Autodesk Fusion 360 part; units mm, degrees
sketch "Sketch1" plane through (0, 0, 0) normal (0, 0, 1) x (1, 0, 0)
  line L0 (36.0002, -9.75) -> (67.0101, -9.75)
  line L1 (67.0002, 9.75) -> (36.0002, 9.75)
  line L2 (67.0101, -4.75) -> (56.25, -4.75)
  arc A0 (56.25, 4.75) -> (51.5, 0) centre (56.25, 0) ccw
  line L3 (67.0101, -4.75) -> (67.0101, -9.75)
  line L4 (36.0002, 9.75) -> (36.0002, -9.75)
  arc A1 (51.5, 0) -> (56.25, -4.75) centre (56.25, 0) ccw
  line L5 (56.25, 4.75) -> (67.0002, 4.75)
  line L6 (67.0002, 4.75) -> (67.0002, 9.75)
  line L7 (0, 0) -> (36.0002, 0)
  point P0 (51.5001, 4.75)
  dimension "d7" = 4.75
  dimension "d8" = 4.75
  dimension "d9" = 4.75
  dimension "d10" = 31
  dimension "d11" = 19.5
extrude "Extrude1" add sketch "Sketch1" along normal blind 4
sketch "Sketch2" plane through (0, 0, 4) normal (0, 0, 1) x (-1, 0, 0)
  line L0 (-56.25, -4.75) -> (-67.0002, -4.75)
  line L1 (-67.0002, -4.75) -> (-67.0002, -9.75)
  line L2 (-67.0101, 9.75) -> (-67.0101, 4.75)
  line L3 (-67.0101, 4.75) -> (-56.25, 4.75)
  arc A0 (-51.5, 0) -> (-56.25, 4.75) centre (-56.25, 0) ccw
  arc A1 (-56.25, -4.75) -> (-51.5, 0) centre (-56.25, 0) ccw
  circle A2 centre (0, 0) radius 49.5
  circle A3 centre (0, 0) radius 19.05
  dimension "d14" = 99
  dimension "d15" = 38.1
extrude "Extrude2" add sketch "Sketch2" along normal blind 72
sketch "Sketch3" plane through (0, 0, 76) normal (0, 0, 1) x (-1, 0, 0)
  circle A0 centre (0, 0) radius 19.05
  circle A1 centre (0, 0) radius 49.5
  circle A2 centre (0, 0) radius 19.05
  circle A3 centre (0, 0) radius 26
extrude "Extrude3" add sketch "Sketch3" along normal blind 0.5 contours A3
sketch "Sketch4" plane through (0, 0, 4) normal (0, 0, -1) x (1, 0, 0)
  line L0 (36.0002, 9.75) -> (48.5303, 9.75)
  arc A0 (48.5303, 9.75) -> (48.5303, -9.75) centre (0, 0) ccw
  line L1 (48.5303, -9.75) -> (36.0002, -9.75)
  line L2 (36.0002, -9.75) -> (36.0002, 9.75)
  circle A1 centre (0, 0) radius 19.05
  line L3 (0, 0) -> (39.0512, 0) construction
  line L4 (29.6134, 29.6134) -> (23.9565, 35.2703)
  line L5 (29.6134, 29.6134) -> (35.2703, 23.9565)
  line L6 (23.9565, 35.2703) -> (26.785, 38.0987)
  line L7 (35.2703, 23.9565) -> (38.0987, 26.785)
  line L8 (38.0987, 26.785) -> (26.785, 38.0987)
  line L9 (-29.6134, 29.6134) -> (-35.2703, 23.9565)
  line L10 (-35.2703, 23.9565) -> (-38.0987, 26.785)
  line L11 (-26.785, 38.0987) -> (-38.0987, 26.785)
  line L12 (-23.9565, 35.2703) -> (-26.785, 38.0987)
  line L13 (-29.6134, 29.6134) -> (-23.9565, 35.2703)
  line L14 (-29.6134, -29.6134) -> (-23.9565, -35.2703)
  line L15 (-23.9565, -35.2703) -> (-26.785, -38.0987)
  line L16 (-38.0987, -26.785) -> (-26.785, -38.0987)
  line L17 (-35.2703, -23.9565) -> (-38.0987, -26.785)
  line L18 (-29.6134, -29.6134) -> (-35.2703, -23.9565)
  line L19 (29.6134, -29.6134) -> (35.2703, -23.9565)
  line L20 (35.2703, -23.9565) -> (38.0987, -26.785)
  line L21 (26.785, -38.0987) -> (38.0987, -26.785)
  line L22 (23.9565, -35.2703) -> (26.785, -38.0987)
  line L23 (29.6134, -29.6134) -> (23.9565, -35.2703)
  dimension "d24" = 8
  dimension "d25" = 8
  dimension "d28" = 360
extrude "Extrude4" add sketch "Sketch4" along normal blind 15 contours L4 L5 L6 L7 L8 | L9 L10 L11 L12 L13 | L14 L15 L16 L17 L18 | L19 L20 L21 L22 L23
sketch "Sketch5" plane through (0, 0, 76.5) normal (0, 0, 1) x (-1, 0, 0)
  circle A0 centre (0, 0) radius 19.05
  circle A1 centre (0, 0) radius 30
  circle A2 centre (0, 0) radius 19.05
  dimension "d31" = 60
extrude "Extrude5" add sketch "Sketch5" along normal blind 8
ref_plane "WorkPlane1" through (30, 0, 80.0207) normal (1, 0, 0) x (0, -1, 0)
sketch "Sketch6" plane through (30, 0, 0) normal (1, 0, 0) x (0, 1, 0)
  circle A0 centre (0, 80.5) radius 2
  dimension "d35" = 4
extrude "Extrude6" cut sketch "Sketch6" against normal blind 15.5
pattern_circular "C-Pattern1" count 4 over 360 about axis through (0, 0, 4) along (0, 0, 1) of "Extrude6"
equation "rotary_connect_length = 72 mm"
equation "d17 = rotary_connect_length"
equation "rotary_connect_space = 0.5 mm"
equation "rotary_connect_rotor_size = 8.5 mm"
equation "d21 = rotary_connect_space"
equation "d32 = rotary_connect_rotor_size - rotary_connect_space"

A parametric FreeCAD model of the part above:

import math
import FreeCAD as App
import Part
import Sketcher

V = App.Vector
Q = App.Units.Quantity

doc = App.newDocument("Part")
body = doc.addObject("PartDesign::Body", "Body")

# Sketch on XY plane
sketch1 = body.newObject("Sketcher::SketchObject", "Sketch")
sketch1.AttachmentSupport = (doc.getObject("XY_Plane"), [""])
sketch1.MapMode = "FlatFace"
sketch1.addGeometry([
    Part.LineSegment(V(36, 9.8, 0), V(36, -9.8, 0)),  # 0
    Part.LineSegment(V(36, -9.8, 0), V(67, -9.8, 0)),  # 1
    Part.LineSegment(V(67, -9.8, 0), V(67, -4.8, 0)),  # 2
    Part.LineSegment(V(67, -4.8, 0), V(56.2, -4.8, 0)),  # 3
    Part.ArcOfCircle(Part.Circle(V(56.2, 0, 0), V(0, 0, 1), 4.8), math.radians(90), math.radians(270)),  # 4
    Part.LineSegment(V(56.2, 4.8, 0), V(67, 4.8, 0)),  # 5
    Part.LineSegment(V(67, 4.8, 0), V(67, 9.8, 0)),  # 6
    Part.LineSegment(V(67, 9.8, 0), V(36, 9.8, 0)),  # 7
], False)
sketch1.addConstraint([
    Sketcher.Constraint("Coincident", 0, 2, 1, 1),
    Sketcher.Constraint("Coincident", 1, 2, 2, 1),
    Sketcher.Constraint("Coincident", 2, 2, 3, 1),
    Sketcher.Constraint("Tangent", 3, 2, 4, 2),
    Sketcher.Constraint("Tangent", 4, 1, 5, 1),
    Sketcher.Constraint("Coincident", 5, 2, 6, 1),
    Sketcher.Constraint("Coincident", 6, 2, 7, 1),
    Sketcher.Constraint("Coincident", 7, 2, 0, 1),
    Sketcher.Constraint("Vertical", 0),
    Sketcher.Constraint("Horizontal", 1),
    Sketcher.Constraint("Vertical", 2),
    Sketcher.Constraint("Horizontal", 3),
    Sketcher.Constraint("Horizontal", 5),
    Sketcher.Constraint("Vertical", 6),
    Sketcher.Constraint("Horizontal", 7),
    Sketcher.Constraint("PointOnObject", 4, 3, -1),
    Sketcher.Constraint("Equal", 2, 6),
    Sketcher.Constraint("DistanceX", 7, 2, 7, 1, Q("31 mm")),
    Sketcher.Constraint("Radius", 4, Q("4.75 mm")),
    Sketcher.Constraint("DistanceY", 0, 2, 0, 1, Q("19.5 mm")),
    Sketcher.Constraint("DistanceX", 1, 1, 1, 2, Q("31.01 mm")),
    Sketcher.Constraint("DistanceX", 3, 2, 3, 1, Q("10.76 mm")),
    Sketcher.Constraint("DistanceX", -1, 1, 4, 3, Q("56.25 mm")),
])
pad1 = body.newObject("PartDesign::Pad", "Pad")
pad1.Profile = sketch1
pad1.Length = 4

# Sketch on XY plane
sketch2 = body.newObject("Sketcher::SketchObject", "Sketch001")
sketch2.AttachmentSupport = (doc.getObject("XY_Plane"), [""])
sketch2.MapMode = "FlatFace"
sketch2.AttachmentOffset = App.Placement(V(0, 0, 4), App.Rotation())
sketch2.addGeometry([
    Part.Circle(V(0, 0, 0), V(0, 0, 1), 50),
    Part.Circle(V(0, 0, 0), V(0, 0, 1), 19),
], False)
sketch2.addConstraint([
    Sketcher.Constraint("Coincident", 0, 3, -1, 1),
    Sketcher.Constraint("Coincident", 1, 3, -1, 1),
    Sketcher.Constraint("Diameter", 0, Q("99 mm")),
    Sketcher.Constraint("Diameter", 1, Q("38.1 mm")),
])
pad2 = body.newObject("PartDesign::Pad", "Pad001")
pad2.Profile = sketch2
pad2.Length = 72

# Sketch on XY plane
sketch3 = body.newObject("Sketcher::SketchObject", "Sketch002")
sketch3.AttachmentSupport = (doc.getObject("XY_Plane"), [""])
sketch3.MapMode = "FlatFace"
sketch3.AttachmentOffset = App.Placement(V(0, 0, 76), App.Rotation())
sketch3.addGeometry([
    Part.Circle(V(0, 0, 0), V(0, 0, 1), 26),
    Part.Circle(V(0, 0, 0), V(0, 0, 1), 19),
], False)
sketch3.addConstraint([
    Sketcher.Constraint("Coincident", 0, 3, -1, 1),
    Sketcher.Constraint("Coincident", 1, 3, -1, 1),
    Sketcher.Constraint("Diameter", 0, Q("52 mm")),
    Sketcher.Constraint("Diameter", 1, Q("38.1 mm")),
])
pad3 = body.newObject("PartDesign::Pad", "Pad002")
pad3.Profile = sketch3
pad3.Length = 0.5

# Sketch on XY plane
sketch4 = body.newObject("Sketcher::SketchObject", "Sketch003")
sketch4.AttachmentSupport = (doc.getObject("XY_Plane"), [""])
sketch4.MapMode = "FlatFace"
sketch4.AttachmentOffset = App.Placement(V(0, 0, 4), App.Rotation())
sketch4.addGeometry([
    Part.LineSegment(V(24, -35.3, 0), V(35.3, -24, 0)),  # 0
    Part.LineSegment(V(35.3, -24, 0), V(38.1, -26.8, 0)),  # 1
    Part.LineSegment(V(38.1, -26.8, 0), V(26.8, -38.1, 0)),  # 2
    Part.LineSegment(V(26.8, -38.1, 0), V(24, -35.3, 0)),  # 3
    Part.LineSegment(V(-35.3, -24, 0), V(-24, -35.3, 0)),  # 4
    Part.LineSegment(V(-24, -35.3, 0), V(-26.8, -38.1, 0)),  # 5
    Part.LineSegment(V(-26.8, -38.1, 0), V(-38.1, -26.8, 0)),  # 6
    Part.LineSegment(V(-38.1, -26.8, 0), V(-35.3, -24, 0)),  # 7
    Part.LineSegment(V(-24, 35.3, 0), V(-35.3, 24, 0)),  # 8
    Part.LineSegment(V(-35.3, 24, 0), V(-38.1, 26.8, 0)),  # 9
    Part.LineSegment(V(-38.1, 26.8, 0), V(-26.8, 38.1, 0)),  # 10
    Part.LineSegment(V(-26.8, 38.1, 0), V(-24, 35.3, 0)),  # 11
    Part.LineSegment(V(35.3, 24, 0), V(24, 35.3, 0)),  # 12
    Part.LineSegment(V(24, 35.3, 0), V(26.8, 38.1, 0)),  # 13
    Part.LineSegment(V(26.8, 38.1, 0), V(38.1, 26.8, 0)),  # 14
    Part.LineSegment(V(38.1, 26.8, 0), V(35.3, 24, 0)),  # 15
], False)
sketch4.addConstraint([
    Sketcher.Constraint("Coincident", 0, 2, 1, 1),
    Sketcher.Constraint("Coincident", 1, 2, 2, 1),
    Sketcher.Constraint("Coincident", 2, 2, 3, 1),
    Sketcher.Constraint("Coincident", 3, 2, 0, 1),
    Sketcher.Constraint("Coincident", 4, 2, 5, 1),
    Sketcher.Constraint("Coincident", 5, 2, 6, 1),
    Sketcher.Constraint("Coincident", 6, 2, 7, 1),
    Sketcher.Constraint("Coincident", 7, 2, 4, 1),
    Sketcher.Constraint("Coincident", 8, 2, 9, 1),
    Sketcher.Constraint("Coincident", 9, 2, 10, 1),
    Sketcher.Constraint("Coincident", 10, 2, 11, 1),
    Sketcher.Constraint("Coincident", 11, 2, 8, 1),
    Sketcher.Constraint("Coincident", 12, 2, 13, 1),
    Sketcher.Constraint("Coincident", 13, 2, 14, 1),
    Sketcher.Constraint("Coincident", 14, 2, 15, 1),
    Sketcher.Constraint("Coincident", 15, 2, 12, 1),
    Sketcher.Constraint("Symmetric", 0, 2, 8, 2, -1, 1),
    Sketcher.Constraint("Symmetric", 1, 2, 9, 2, -1, 1),
    Sketcher.Constraint("Symmetric", 2, 2, 10, 2, -1, 1),
    Sketcher.Constraint("Symmetric", 3, 2, 11, 2, -1, 1),
    Sketcher.Constraint("Symmetric", 4, 2, 12, 2, -1, 1),
    Sketcher.Constraint("Symmetric", 5, 2, 13, 2, -1, 1),
    Sketcher.Constraint("Symmetric", 6, 2, 14, 2, -1, 1),
    Sketcher.Constraint("Symmetric", 7, 2, 15, 2, -1, 1),
    Sketcher.Constraint("Symmetric", 3, 2, 4, 2, -2),
    Sketcher.Constraint("Symmetric", 2, 2, 5, 2, -2),
    Sketcher.Constraint("Symmetric", 1, 2, 6, 2, -2),
    Sketcher.Constraint("Symmetric", 0, 2, 7, 2, -2),
    Sketcher.Constraint("Perpendicular", 0, 1),
    Sketcher.Constraint("Perpendicular", 1, 2),
    Sketcher.Constraint("Perpendicular", 2, 3),
    Sketcher.Constraint("Parallel", 3, 4),
    Sketcher.Constraint("Distance", 1, Q("4 mm")),
    Sketcher.Constraint("Distance", 2, Q("16 mm")),
    Sketcher.Constraint("DistanceX", 5, 2, 2, 2, Q("53.57 mm")),
    Sketcher.Constraint("DistanceY", 6, 2, 9, 2, Q("53.57 mm")),
])
pad4 = body.newObject("PartDesign::Pad", "Pad003")
pad4.Profile = sketch4
pad4.Length = 15
pad4.Reversed = True

# Sketch on XY plane
sketch5 = body.newObject("Sketcher::SketchObject", "Sketch004")
sketch5.AttachmentSupport = (doc.getObject("XY_Plane"), [""])
sketch5.MapMode = "FlatFace"
sketch5.AttachmentOffset = App.Placement(V(0, 0, 76.5), App.Rotation())
sketch5.addGeometry([
    Part.Circle(V(0, 0, 0), V(0, 0, 1), 30),
    Part.Circle(V(0, 0, 0), V(0, 0, 1), 19),
], False)
sketch5.addConstraint([
    Sketcher.Constraint("Coincident", 0, 3, -1, 1),
    Sketcher.Constraint("Coincident", 1, 3, -1, 1),
    Sketcher.Constraint("Diameter", 0, Q("60 mm")),
    Sketcher.Constraint("Diameter", 1, Q("38.1 mm")),
])
pad5 = body.newObject("PartDesign::Pad", "Pad004")
pad5.Profile = sketch5
pad5.Length = 8

# Sketch on YZ plane
sketch6 = body.newObject("Sketcher::SketchObject", "Sketch005")
sketch6.AttachmentSupport = (doc.getObject("YZ_Plane"), [""])
sketch6.MapMode = "FlatFace"
sketch6.AttachmentOffset = App.Placement(V(0, 0, 30), App.Rotation())
sketch6.addGeometry(Part.Circle(V(0, 80.5, 0), V(0, 0, 1), 2), False)
sketch6.addConstraint([
    Sketcher.Constraint("PointOnObject", 0, 3, -2),
    Sketcher.Constraint("Diameter", 0, Q("4 mm")),
    Sketcher.Constraint("DistanceY", -1, 1, 0, 3, Q("80.5 mm")),
])
pocket1 = body.newObject("PartDesign::Pocket", "Pocket")
pocket1.Profile = sketch6
pocket1.Length = 15.5
doc.recompute()

polarpattern = body.newObject("PartDesign::PolarPattern", "PolarPattern")
polarpattern.Originals = [pocket1]
polarpattern.Axis = (doc.getObject("Z_Axis"), [""])
polarpattern.Angle = 360
polarpattern.Occurrences = 4
body.Tip = polarpattern

doc.recompute()
